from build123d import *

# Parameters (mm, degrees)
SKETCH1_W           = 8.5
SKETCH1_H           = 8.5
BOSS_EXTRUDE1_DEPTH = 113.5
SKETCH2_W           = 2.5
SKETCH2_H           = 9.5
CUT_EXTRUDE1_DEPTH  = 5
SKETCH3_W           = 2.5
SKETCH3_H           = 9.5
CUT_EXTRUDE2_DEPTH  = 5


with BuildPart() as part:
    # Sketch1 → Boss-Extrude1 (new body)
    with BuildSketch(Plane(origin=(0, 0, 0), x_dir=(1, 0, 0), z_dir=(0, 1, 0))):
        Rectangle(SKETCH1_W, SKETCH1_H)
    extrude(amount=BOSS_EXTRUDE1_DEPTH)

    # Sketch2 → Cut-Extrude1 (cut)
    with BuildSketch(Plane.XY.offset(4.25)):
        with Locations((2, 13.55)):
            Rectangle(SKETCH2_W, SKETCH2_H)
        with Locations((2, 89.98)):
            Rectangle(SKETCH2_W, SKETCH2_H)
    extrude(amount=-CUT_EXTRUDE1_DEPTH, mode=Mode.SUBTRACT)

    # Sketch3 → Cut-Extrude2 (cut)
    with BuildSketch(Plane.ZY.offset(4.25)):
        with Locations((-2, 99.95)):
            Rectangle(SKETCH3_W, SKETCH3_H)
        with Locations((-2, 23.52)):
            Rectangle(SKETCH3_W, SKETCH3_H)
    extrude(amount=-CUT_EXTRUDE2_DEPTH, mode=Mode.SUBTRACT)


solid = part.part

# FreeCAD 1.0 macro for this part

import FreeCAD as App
import Part
import Sketcher

V = App.Vector
Q = App.Units.Quantity

doc = App.newDocument("Part")
body = doc.addObject("PartDesign::Body", "Body")

sketch1 = body.newObject("Sketcher::SketchObject", "Sketch")
sketch1.AttachmentSupport = (doc.getObject("XZ_Plane"), [""])
sketch1.MapMode = "FlatFace"
sketch1.addGeometry(Part.LineSegment(V(-4, -4, 0), V(-4, 4, 0)), False)
sketch1.addGeometry(Part.LineSegment(V(-4, 4, 0), V(4, 4, 0)), False)
sketch1.addGeometry(Part.LineSegment(V(4, 4, 0), V(4, -4, 0)), False)
sketch1.addGeometry(Part.LineSegment(V(4, -4, 0), V(-4, -4, 0)), False)
sketch1.addConstraint(Sketcher.Constraint("Coincident", 0, 2, 1, 1))
sketch1.addConstraint(Sketcher.Constraint("Coincident", 1, 2, 2, 1))
sketch1.addConstraint(Sketcher.Constraint("Coincident", 2, 2, 3, 1))
sketch1.addConstraint(Sketcher.Constraint("Coincident", 3, 2, 0, 1))
sketch1.addConstraint(Sketcher.Constraint("Vertical", 0))
sketch1.addConstraint(Sketcher.Constraint("Horizontal", 1))
sketch1.addConstraint(Sketcher.Constraint("Vertical", 2))
sketch1.addConstraint(Sketcher.Constraint("Horizontal", 3))
sketch1.addConstraint(Sketcher.Constraint("Symmetric", 0, 2, 2, 2, -1, 1))
sketch1.addConstraint(Sketcher.Constraint("Equal", 3, 0))
sketch1.addConstraint(Sketcher.Constraint("DistanceX", 1, 1, 1, 2, Q("8.5 mm")))
pad1 = body.newObject("PartDesign::Pad", "Pad")
pad1.Profile = sketch1
pad1.Length = 113.5
pad1.Reversed = True

sketch2 = body.newObject("Sketcher::SketchObject", "Sketch001")
sketch2.AttachmentSupport = (doc.getObject("XY_Plane"), [""])
sketch2.MapMode = "FlatFace"
sketch2.AttachmentOffset = App.Placement(V(0, 0, 4.25), App.Rotation())
sketch2.addGeometry(Part.LineSegment(V(0.8, 18.3, 0), V(0.8, 8.8, 0)), False)
sketch2.addGeometry(Part.LineSegment(V(0.8, 8.8, 0), V(3.2, 8.8, 0)), False)
sketch2.addGeometry(Part.LineSegment(V(3.2, 8.8, 0), V(3.2, 18.3, 0)), False)
sketch2.addGeometry(Part.LineSegment(V(3.2, 18.3, 0), V(0.8, 18.3, 0)), False)
sketch2.addGeometry(Part.LineSegment(V(0.8, 94.7, 0), V(0.8, 85.2, 0)), False)
sketch2.addGeometry(Part.LineSegment(V(0.8, 85.2, 0), V(3.2, 85.2, 0)), False)
sketch2.addGeometry(Part.LineSegment(V(3.2, 85.2, 0), V(3.2, 94.7, 0)), False)
sketch2.addGeometry(Part.LineSegment(V(3.2, 94.7, 0), V(0.8, 94.7, 0)), False)
sketch2.addConstraint(Sketcher.Constraint("Coincident", 0, 2, 1, 1))
sketch2.addConstraint(Sketcher.Constraint("Coincident", 1, 2, 2, 1))
sketch2.addConstraint(Sketcher.Constraint("Coincident", 2, 2, 3, 1))
sketch2.addConstraint(Sketcher.Constraint("Coincident", 3, 2, 0, 1))
sketch2.addConstraint(Sketcher.Constraint("Coincident", 4, 2, 5, 1))
sketch2.addConstraint(Sketcher.Constraint("Coincident", 5, 2, 6, 1))
sketch2.addConstraint(Sketcher.Constraint("Coincident", 6, 2, 7, 1))
sketch2.addConstraint(Sketcher.Constraint("Coincident", 7, 2, 4, 1))
sketch2.addConstraint(Sketcher.Constraint("Vertical", 0))
sketch2.addConstraint(Sketcher.Constraint("Horizontal", 1))
sketch2.addConstraint(Sketcher.Constraint("Vertical", 2))
sketch2.addConstraint(Sketcher.Constraint("Horizontal", 3))
sketch2.addConstraint(Sketcher.Constraint("Vertical", 4))
sketch2.addConstraint(Sketcher.Constraint("Horizontal", 5))
sketch2.addConstraint(Sketcher.Constraint("Vertical", 6))
sketch2.addConstraint(Sketcher.Constraint("Horizontal", 7))
sketch2.addConstraint(Sketcher.Constraint("Vertical", 3, 2, 4, 2))
sketch2.addConstraint(Sketcher.Constraint("Vertical", 2, 2, 5, 2))
sketch2.addConstraint(Sketcher.Constraint("Equal", 2, 4))
sketch2.addConstraint(Sketcher.Constraint("DistanceX", 1, 1, 1, 2, Q("2.5 mm")))
sketch2.addConstraint(Sketcher.Constraint("DistanceY", 0, 2, 0, 1, Q("9.5 mm")))
sketch2.addConstraint(Sketcher.Constraint("DistanceY", -1, 1, 0, 2, Q("8.8 mm")))
sketch2.addConstraint(Sketcher.Constraint("DistanceX", -1, 1, 0, 2, Q("0.75 mm")))
sketch2.addConstraint(Sketcher.Constraint("DistanceY", -1, 1, 4, 2, Q("85.23 mm")))
pocket1 = body.newObject("PartDesign::Pocket", "Pocket")
pocket1.Profile = sketch2
pocket1.Length = 5

sketch3 = body.newObject("Sketcher::SketchObject", "Sketch002")
sketch3.AttachmentSupport = (doc.getObject("YZ_Plane"), [""])
sketch3.MapMode = "FlatFace"
sketch3.AttachmentOffset = App.Placement(V(0, 0, -4.25), App.Rotation())
sketch3.addGeometry(Part.LineSegment(V(104.7, -3.2, 0), V(95.2, -3.2, 0)), False)
sketch3.addGeometry(Part.LineSegment(V(95.2, -3.2, 0), V(95.2, -0.8, 0)), False)
sketch3.addGeometry(Part.LineSegment(V(95.2, -0.8, 0), V(104.7, -0.8, 0)), False)
sketch3.addGeometry(Part.LineSegment(V(104.7, -0.8, 0), V(104.7, -3.2, 0)), False)
sketch3.addGeometry(Part.LineSegment(V(28.3, -3.2, 0), V(18.8, -3.2, 0)), False)
sketch3.addGeometry(Part.LineSegment(V(18.8, -3.2, 0), V(18.8, -0.8, 0)), False)
sketch3.addGeometry(Part.LineSegment(V(18.8, -0.8, 0), V(28.3, -0.8, 0)), False)
sketch3.addGeometry(Part.LineSegment(V(28.3, -0.8, 0), V(28.3, -3.2, 0)), False)
sketch3.addConstraint(Sketcher.Constraint("Coincident", 0, 2, 1, 1))
sketch3.addConstraint(Sketcher.Constraint("Coincident", 1, 2, 2, 1))
sketch3.addConstraint(Sketcher.Constraint("Coincident", 2, 2, 3, 1))
sketch3.addConstraint(Sketcher.Constraint("Coincident", 3, 2, 0, 1))
sketch3.addConstraint(Sketcher.Constraint("Coincident", 4, 2, 5, 1))
sketch3.addConstraint(Sketcher.Constraint("Coincident", 5, 2, 6, 1))
sketch3.addConstraint(Sketcher.Constraint("Coincident", 6, 2, 7, 1))
sketch3.addConstraint(Sketcher.Constraint("Coincident", 7, 2, 4, 1))
sketch3.addConstraint(Sketcher.Constraint("Horizontal", 0))
sketch3.addConstraint(Sketcher.Constraint("Vertical", 1))
sketch3.addConstraint(Sketcher.Constraint("Horizontal", 2))
sketch3.addConstraint(Sketcher.Constraint("Vertical", 3))
sketch3.addConstraint(Sketcher.Constraint("Horizontal", 4))
sketch3.addConstraint(Sketcher.Constraint("Vertical", 5))
sketch3.addConstraint(Sketcher.Constraint("Horizontal", 6))
sketch3.addConstraint(Sketcher.Constraint("Vertical", 7))
sketch3.addConstraint(Sketcher.Constraint("Horizontal", 3, 2, 4, 2))
sketch3.addConstraint(Sketcher.Constraint("Horizontal", 2, 2, 5, 2))
sketch3.addConstraint(Sketcher.Constraint("Equal", 2, 4))
sketch3.addConstraint(Sketcher.Constraint("DistanceX", 0, 2, 0, 1, Q("9.5 mm")))
sketch3.addConstraint(Sketcher.Constraint("DistanceY", 1, 1, 1, 2, Q("2.5 mm")))
sketch3.addConstraint(Sketcher.Constraint("DistanceX", -1, 1, 0, 2, Q("95.2 mm")))
sketch3.addConstraint(Sketcher.Constraint("DistanceY", 0, 2, -1, 1, Q("3.25 mm")))
sketch3.addConstraint(Sketcher.Constraint("DistanceX", -1, 1, 4, 2, Q("18.77 mm")))
pocket2 = body.newObject("PartDesign::Pocket", "Pocket001")
pocket2.Profile = sketch3
pocket2.Length = 5
pocket2.Reversed = True

doc.recompute()
